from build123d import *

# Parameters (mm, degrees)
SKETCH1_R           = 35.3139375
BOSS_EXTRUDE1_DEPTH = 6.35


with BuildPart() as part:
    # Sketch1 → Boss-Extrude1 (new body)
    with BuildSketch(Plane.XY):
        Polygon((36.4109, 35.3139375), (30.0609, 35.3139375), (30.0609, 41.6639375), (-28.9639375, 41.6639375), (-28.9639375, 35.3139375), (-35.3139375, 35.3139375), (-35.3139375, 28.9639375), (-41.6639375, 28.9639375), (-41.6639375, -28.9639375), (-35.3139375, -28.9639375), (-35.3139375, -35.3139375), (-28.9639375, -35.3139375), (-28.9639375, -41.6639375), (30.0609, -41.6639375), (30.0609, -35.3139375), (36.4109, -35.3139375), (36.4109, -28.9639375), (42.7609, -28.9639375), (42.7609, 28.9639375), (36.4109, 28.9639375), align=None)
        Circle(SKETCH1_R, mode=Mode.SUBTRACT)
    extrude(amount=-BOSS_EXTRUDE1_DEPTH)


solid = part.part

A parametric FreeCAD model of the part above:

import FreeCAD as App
import Part
import Sketcher

V = App.Vector
Q = App.Units.Quantity

doc = App.newDocument("Part")
body = doc.addObject("PartDesign::Body", "Body")

# Sketch on XY plane
sketch1 = doc.addObject("Sketcher::SketchObject", "Sketch")
body.addObject(sketch1)
sketch1.AttachmentSupport = (doc.XY_Plane, [""])
sketch1.MapMode = "FlatFace"
sketch1.addGeometry([
    Part.LineSegment(V(36, 35, 0), V(30, 35, 0)),  # 0
    Part.LineSegment(V(30, 35, 0), V(30, 42, 0)),  # 1
    Part.LineSegment(V(30, 42, 0), V(-29, 42, 0)),  # 2
    Part.LineSegment(V(-29, 42, 0), V(-29, 35, 0)),  # 3
    Part.LineSegment(V(-29, 35, 0), V(-35, 35, 0)),  # 4
    Part.LineSegment(V(-35, 35, 0), V(-35, 29, 0)),  # 5
    Part.LineSegment(V(-35, 29, 0), V(-42, 29, 0)),  # 6
    Part.LineSegment(V(-42, 29, 0), V(-42, -29, 0)),  # 7
    Part.LineSegment(V(-42, -29, 0), V(-35, -29, 0)),  # 8
    Part.LineSegment(V(-35, -29, 0), V(-35, -35, 0)),  # 9
    Part.LineSegment(V(-35, -35, 0), V(-29, -35, 0)),  # 10
    Part.LineSegment(V(-29, -35, 0), V(-29, -42, 0)),  # 11
    Part.LineSegment(V(-29, -42, 0), V(30, -42, 0)),  # 12
    Part.LineSegment(V(30, -42, 0), V(30, -35, 0)),  # 13
    Part.LineSegment(V(30, -35, 0), V(36, -35, 0)),  # 14
    Part.LineSegment(V(36, -35, 0), V(36, -29, 0)),  # 15
    Part.LineSegment(V(36, -29, 0), V(43, -29, 0)),  # 16
    Part.LineSegment(V(43, -29, 0), V(43, 29, 0)),  # 17
    Part.LineSegment(V(43, 29, 0), V(36, 29, 0)),  # 18
    Part.LineSegment(V(36, 29, 0), V(36, 35, 0)),  # 19
    Part.Circle(V(0, 0, 0), V(0, 0, 1), 35),  # 20
], False)
sketch1.addConstraint([
    Sketcher.Constraint("Coincident", 0, 2, 1, 1),
    Sketcher.Constraint("Coincident", 1, 2, 2, 1),
    Sketcher.Constraint("Coincident", 2, 2, 3, 1),
    Sketcher.Constraint("Coincident", 3, 2, 4, 1),
    Sketcher.Constraint("Coincident", 4, 2, 5, 1),
    Sketcher.Constraint("Coincident", 5, 2, 6, 1),
    Sketcher.Constraint("Coincident", 6, 2, 7, 1),
    Sketcher.Constraint("Coincident", 7, 2, 8, 1),
    Sketcher.Constraint("Coincident", 8, 2, 9, 1),
    Sketcher.Constraint("Coincident", 9, 2, 10, 1),
    Sketcher.Constraint("Coincident", 10, 2, 11, 1),
    Sketcher.Constraint("Coincident", 11, 2, 12, 1),
    Sketcher.Constraint("Coincident", 12, 2, 13, 1),
    Sketcher.Constraint("Coincident", 13, 2, 14, 1),
    Sketcher.Constraint("Coincident", 14, 2, 15, 1),
    Sketcher.Constraint("Coincident", 15, 2, 16, 1),
    Sketcher.Constraint("Coincident", 16, 2, 17, 1),
    Sketcher.Constraint("Coincident", 17, 2, 18, 1),
    Sketcher.Constraint("Coincident", 18, 2, 19, 1),
    Sketcher.Constraint("Coincident", 19, 2, 0, 1),
    Sketcher.Constraint("Horizontal", 0),
    Sketcher.Constraint("Vertical", 1),
    Sketcher.Constraint("Horizontal", 2),
    Sketcher.Constraint("Vertical", 3),
    Sketcher.Constraint("Horizontal", 4),
    Sketcher.Constraint("Vertical", 5),
    Sketcher.Constraint("Horizontal", 6),
    Sketcher.Constraint("Vertical", 7),
    Sketcher.Constraint("Horizontal", 8),
    Sketcher.Constraint("Vertical", 9),
    Sketcher.Constraint("Horizontal", 10),
    Sketcher.Constraint("Vertical", 11),
    Sketcher.Constraint("Horizontal", 12),
    Sketcher.Constraint("Vertical", 13),
    Sketcher.Constraint("Horizontal", 14),
    Sketcher.Constraint("Vertical", 15),
    Sketcher.Constraint("Horizontal", 16),
    Sketcher.Constraint("Vertical", 17),
    Sketcher.Constraint("Horizontal", 18),
    Sketcher.Constraint("Vertical", 19),
    Sketcher.Constraint("Coincident", 20, 3, -1, 1),
    Sketcher.Constraint("Symmetric", 5, 2, 8, 2, -1),
    Sketcher.Constraint("Symmetric", 3, 2, 10, 2, -1),
    Sketcher.Constraint("Symmetric", 1, 2, 12, 2, -1),
    Sketcher.Constraint("Symmetric", 15, 2, 18, 2, -1),
    Sketcher.Constraint("Horizontal", 0, 2, 3, 2),
    Sketcher.Constraint("Horizontal", 10, 2, 13, 2),
    Sketcher.Constraint("Horizontal", 8, 2, 15, 2),
    Sketcher.Constraint("Equal", 0, 4),
    Sketcher.Constraint("Equal", 4, 6),
    Sketcher.Constraint("Equal", 14, 16),
    Sketcher.Constraint("Equal", 18, 1),
    Sketcher.Constraint("Equal", 3, 5),
    Sketcher.Constraint("DistanceX", 0, 2, 0, 1, Q("0.25 in")),
    Sketcher.Constraint("Diameter", 20, Q("70.627875 mm")),
    Sketcher.Constraint("DistanceX", -1, 1, 0, 2, Q("1.1835 in")),
    Sketcher.Constraint("DistanceX", 2, 2, 2, 1, Q("59.024838 mm")),
    Sketcher.Constraint("DistanceY", 7, 2, 7, 1, Q("57.927875 mm")),
])
pad1 = doc.addObject("PartDesign::Pad", "Pad")
body.addObject(pad1)
pad1.Profile = sketch1
pad1.Length = Q("0.25 in")
pad1.Reversed = True

doc.recompute()
